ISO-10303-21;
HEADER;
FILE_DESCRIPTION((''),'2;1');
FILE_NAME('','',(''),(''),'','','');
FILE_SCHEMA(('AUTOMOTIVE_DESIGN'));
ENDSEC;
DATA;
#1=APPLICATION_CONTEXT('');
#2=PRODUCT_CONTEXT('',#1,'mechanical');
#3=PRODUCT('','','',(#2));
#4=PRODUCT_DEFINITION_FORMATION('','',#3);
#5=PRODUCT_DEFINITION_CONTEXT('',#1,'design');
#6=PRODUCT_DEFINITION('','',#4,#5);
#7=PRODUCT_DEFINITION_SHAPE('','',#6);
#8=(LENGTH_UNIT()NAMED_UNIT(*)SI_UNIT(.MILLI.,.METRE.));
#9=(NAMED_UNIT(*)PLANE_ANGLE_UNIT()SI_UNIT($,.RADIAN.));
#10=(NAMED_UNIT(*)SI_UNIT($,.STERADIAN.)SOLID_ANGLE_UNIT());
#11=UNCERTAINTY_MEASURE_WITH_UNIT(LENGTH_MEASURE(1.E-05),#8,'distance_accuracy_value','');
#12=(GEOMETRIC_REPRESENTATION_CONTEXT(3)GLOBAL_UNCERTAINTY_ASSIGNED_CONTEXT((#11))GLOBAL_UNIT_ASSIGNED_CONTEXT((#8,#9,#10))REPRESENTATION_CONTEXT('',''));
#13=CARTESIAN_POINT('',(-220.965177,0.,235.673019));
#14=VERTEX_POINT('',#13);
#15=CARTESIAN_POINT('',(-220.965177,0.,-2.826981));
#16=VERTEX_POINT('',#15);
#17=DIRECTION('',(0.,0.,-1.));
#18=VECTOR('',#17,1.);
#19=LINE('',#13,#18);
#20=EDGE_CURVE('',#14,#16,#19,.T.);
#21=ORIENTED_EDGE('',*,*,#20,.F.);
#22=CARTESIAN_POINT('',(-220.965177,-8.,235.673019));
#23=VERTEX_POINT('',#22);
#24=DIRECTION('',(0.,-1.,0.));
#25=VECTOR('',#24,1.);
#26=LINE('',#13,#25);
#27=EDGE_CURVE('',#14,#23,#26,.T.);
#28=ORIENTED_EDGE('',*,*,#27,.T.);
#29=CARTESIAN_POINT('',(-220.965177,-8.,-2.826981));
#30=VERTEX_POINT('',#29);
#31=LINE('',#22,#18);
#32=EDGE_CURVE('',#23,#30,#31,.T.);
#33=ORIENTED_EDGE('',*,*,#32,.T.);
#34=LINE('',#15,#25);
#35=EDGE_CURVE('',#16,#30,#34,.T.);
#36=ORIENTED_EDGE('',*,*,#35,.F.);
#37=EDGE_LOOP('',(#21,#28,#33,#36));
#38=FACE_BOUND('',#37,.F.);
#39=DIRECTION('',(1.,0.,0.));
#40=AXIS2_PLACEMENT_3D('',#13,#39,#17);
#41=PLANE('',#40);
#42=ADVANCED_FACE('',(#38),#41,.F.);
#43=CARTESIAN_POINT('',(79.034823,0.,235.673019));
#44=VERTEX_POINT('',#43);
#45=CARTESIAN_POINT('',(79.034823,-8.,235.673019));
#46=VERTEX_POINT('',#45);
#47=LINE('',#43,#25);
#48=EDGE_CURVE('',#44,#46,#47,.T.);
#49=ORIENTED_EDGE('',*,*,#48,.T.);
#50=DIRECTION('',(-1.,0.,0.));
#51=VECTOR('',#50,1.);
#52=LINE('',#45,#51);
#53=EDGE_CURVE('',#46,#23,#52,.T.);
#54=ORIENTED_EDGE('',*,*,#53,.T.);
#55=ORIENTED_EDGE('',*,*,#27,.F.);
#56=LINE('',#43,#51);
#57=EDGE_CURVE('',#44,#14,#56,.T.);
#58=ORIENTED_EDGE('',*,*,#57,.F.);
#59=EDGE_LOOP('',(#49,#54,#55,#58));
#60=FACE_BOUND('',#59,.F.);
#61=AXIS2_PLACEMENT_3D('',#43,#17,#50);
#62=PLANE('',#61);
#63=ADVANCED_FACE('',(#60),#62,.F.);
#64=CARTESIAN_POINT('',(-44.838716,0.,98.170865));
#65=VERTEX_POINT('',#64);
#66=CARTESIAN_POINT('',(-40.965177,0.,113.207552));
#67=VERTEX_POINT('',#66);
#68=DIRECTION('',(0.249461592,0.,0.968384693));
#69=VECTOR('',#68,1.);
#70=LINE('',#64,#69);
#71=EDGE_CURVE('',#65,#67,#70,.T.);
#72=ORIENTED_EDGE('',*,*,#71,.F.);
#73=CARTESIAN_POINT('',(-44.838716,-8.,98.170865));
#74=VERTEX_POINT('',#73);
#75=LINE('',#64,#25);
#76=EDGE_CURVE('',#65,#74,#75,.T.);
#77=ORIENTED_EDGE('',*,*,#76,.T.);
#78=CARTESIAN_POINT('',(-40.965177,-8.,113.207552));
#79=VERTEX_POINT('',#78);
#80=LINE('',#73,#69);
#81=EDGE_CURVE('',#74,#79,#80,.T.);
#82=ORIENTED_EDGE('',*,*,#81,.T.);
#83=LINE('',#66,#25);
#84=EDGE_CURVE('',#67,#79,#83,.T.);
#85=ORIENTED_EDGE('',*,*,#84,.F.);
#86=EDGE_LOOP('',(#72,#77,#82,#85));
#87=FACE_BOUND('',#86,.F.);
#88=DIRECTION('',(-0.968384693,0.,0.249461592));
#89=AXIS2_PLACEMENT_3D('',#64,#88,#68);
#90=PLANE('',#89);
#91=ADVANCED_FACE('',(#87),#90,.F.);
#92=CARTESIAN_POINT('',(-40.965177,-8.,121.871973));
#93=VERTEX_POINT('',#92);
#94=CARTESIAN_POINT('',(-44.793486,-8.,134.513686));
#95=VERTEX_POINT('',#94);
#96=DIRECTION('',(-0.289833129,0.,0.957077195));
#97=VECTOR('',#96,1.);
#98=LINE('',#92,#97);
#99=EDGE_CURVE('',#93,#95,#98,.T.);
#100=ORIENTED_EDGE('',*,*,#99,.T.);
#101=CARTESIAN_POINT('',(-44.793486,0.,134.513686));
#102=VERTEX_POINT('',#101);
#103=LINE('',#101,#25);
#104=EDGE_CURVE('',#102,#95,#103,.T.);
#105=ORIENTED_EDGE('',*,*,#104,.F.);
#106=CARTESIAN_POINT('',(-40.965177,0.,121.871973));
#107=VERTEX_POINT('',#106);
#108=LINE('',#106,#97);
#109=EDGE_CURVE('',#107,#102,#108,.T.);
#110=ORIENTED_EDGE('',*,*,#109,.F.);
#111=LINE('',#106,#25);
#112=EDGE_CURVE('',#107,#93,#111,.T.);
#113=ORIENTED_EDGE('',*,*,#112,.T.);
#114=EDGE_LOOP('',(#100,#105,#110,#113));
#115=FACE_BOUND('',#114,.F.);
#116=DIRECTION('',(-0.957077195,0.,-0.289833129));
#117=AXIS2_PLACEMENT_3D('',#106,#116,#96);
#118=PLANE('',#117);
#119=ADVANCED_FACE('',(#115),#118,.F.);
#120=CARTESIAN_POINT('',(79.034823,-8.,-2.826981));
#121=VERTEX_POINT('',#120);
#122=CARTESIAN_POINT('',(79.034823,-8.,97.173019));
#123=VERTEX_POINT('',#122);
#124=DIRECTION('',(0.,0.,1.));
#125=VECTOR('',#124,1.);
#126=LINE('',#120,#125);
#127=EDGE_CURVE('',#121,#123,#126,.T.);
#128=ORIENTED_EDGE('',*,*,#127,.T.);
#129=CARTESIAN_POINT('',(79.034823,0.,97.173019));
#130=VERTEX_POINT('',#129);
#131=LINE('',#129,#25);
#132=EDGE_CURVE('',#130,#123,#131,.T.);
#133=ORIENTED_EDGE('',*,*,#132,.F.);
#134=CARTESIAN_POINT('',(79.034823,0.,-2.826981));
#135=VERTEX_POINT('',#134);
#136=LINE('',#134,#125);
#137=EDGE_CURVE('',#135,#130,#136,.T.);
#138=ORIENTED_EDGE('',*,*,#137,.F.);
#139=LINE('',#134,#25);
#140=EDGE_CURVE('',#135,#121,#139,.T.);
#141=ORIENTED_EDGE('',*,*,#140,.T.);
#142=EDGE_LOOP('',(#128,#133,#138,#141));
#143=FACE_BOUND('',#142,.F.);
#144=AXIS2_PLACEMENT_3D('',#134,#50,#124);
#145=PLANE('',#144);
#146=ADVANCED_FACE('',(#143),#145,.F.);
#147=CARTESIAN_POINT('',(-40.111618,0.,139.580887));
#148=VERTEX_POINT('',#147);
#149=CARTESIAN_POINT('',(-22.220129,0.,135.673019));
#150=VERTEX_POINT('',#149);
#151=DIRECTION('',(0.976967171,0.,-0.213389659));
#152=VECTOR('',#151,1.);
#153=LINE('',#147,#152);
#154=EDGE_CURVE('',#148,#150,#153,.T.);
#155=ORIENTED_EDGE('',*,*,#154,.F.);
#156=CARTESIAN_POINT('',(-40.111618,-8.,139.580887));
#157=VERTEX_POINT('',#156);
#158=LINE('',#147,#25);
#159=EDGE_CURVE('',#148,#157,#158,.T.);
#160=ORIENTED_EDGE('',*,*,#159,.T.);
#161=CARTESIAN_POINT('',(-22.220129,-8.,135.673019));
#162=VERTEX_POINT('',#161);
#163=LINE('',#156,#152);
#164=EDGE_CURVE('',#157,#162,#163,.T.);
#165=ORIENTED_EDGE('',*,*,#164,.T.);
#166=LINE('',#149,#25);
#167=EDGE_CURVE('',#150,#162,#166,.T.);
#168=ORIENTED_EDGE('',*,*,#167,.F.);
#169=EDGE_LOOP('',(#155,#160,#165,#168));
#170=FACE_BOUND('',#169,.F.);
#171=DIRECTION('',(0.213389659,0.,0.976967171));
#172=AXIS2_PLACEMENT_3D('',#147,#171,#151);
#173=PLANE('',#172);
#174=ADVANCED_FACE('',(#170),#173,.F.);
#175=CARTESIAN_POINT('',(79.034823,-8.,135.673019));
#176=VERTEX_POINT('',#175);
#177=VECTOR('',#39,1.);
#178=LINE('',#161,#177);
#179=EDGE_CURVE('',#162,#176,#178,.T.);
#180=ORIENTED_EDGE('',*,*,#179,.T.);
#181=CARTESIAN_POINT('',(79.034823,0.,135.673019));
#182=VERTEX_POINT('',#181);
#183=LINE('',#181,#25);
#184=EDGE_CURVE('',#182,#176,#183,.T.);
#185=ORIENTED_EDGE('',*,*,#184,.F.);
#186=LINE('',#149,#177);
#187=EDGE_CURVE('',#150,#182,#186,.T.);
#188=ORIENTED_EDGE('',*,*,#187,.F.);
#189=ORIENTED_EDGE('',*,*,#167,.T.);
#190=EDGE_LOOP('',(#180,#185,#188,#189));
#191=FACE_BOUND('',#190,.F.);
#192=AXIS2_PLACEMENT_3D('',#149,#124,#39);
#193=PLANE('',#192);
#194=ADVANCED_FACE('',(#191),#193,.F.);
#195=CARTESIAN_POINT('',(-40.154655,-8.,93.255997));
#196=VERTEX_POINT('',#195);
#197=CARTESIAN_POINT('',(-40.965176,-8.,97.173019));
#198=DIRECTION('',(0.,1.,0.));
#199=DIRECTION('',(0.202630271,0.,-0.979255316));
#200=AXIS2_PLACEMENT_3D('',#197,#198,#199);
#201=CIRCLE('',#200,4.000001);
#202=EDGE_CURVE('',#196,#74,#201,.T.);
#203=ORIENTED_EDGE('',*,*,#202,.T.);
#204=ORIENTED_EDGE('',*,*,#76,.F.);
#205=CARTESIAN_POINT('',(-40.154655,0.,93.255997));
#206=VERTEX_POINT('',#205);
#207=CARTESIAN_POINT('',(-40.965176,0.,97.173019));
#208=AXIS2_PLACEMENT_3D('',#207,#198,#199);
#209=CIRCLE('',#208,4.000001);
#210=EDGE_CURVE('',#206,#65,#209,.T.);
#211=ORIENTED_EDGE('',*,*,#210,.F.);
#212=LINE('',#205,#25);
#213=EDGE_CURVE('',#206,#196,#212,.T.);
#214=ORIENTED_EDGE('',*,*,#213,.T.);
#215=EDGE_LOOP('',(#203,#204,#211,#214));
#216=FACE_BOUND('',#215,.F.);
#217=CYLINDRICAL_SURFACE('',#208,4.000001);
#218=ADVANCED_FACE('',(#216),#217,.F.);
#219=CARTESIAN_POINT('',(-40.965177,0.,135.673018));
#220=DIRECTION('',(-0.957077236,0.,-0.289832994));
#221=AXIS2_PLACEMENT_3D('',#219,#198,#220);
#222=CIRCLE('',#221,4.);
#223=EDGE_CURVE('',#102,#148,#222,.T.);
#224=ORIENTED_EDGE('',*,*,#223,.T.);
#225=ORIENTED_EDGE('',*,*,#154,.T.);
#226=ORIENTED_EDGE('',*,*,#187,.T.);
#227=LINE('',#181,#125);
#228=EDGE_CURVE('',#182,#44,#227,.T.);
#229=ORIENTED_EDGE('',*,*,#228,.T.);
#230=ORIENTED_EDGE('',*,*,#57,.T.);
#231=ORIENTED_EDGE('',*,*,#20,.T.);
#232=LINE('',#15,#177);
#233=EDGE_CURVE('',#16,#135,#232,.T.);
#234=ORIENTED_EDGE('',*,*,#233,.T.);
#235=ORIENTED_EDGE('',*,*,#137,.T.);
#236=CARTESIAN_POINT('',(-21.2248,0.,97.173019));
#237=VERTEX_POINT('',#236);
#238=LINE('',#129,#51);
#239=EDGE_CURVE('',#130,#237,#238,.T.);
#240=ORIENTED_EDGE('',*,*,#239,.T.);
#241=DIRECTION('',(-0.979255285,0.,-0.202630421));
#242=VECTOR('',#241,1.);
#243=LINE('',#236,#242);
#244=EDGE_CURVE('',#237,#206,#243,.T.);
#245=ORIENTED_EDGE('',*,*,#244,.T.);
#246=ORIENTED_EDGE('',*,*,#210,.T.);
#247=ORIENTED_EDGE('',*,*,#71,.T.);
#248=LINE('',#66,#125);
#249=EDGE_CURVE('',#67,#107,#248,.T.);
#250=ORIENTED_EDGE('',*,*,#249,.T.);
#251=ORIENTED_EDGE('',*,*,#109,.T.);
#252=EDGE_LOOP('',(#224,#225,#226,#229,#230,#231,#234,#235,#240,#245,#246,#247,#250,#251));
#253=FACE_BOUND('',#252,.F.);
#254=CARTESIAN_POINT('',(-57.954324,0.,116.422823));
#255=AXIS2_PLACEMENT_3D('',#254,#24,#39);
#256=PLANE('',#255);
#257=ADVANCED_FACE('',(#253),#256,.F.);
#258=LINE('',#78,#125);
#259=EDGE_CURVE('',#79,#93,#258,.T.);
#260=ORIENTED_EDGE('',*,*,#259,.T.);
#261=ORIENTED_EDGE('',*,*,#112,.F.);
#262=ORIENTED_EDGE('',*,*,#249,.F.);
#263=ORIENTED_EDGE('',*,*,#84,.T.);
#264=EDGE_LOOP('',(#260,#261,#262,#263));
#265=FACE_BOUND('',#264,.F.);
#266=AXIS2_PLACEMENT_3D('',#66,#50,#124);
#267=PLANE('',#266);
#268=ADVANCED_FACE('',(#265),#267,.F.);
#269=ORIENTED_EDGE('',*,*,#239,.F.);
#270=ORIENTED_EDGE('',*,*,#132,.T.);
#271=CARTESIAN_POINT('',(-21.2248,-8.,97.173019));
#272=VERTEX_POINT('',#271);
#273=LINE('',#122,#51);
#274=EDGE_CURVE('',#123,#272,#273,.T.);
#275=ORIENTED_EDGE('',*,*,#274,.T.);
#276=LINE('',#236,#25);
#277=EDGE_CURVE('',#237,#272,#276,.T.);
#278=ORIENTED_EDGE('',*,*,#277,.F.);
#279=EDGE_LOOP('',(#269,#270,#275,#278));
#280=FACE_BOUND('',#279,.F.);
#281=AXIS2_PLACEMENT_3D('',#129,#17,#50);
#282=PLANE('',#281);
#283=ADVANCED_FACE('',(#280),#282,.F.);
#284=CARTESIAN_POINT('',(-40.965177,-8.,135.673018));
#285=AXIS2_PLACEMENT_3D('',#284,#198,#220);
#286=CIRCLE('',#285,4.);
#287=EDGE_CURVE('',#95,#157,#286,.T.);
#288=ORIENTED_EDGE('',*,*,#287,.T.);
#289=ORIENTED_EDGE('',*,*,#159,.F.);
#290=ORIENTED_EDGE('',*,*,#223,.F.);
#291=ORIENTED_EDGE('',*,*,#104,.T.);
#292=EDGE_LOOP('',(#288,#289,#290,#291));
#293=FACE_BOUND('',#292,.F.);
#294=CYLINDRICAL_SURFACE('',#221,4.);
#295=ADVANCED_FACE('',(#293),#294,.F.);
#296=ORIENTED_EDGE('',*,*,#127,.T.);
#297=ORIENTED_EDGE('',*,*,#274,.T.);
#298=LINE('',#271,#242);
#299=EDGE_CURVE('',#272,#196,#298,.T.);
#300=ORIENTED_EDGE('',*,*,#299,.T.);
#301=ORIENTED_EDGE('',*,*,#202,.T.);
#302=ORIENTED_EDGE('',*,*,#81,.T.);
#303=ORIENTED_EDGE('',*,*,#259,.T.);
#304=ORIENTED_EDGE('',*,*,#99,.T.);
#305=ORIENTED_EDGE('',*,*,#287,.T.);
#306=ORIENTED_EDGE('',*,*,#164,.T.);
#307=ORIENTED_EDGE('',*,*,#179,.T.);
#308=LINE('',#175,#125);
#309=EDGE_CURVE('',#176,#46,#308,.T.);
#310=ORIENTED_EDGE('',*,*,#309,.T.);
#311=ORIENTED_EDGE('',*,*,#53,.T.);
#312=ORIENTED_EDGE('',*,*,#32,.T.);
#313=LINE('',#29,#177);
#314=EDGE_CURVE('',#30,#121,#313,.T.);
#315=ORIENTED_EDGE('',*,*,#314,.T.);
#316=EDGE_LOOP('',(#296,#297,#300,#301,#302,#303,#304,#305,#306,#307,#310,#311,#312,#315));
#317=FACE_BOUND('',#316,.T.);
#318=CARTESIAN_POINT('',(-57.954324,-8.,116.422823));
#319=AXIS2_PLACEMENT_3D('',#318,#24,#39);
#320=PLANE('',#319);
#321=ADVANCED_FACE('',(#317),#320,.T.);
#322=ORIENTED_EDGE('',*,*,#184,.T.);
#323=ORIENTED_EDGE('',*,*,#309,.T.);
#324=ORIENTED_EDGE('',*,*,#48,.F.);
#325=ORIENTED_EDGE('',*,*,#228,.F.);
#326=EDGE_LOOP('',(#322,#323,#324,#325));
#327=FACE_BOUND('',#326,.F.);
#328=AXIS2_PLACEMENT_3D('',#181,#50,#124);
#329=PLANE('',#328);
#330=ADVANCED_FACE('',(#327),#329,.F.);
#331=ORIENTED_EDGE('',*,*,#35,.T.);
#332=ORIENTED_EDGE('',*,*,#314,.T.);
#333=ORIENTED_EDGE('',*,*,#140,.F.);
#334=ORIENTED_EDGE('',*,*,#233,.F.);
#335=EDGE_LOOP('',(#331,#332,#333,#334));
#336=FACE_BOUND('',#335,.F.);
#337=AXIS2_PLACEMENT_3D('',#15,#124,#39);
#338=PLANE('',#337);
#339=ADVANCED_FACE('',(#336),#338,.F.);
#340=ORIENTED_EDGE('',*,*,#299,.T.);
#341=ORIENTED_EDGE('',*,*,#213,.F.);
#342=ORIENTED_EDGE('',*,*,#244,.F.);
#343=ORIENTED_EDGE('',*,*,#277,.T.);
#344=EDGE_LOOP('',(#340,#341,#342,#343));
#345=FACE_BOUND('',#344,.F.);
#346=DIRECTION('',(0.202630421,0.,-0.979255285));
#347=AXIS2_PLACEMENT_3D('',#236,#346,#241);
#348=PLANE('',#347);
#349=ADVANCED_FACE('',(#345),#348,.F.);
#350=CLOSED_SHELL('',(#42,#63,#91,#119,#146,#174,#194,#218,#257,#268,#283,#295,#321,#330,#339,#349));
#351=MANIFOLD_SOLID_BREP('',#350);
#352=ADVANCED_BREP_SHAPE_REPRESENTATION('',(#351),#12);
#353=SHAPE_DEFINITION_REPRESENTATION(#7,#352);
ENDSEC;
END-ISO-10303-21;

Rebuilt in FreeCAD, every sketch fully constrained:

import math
import FreeCAD as App
import Part
import Sketcher

V = App.Vector
Q = App.Units.Quantity

doc = App.newDocument("Part")
params = doc.addObject("Spreadsheet::Sheet", "Params")
for row, (alias, value) in enumerate([
    ("sketch1_radius", "4.000001 mm"),
    ("sketch1_width", "300 mm"),
    ("sketch1_height", "100 mm"),
    ("sketch1_height2", "238.5 mm"),
    ("pad1_length", "8 mm"),
], start=1):
    params.set(f"A{row}", alias)
    params.set(f"B{row}", "=" + value)
    params.setAlias(f"B{row}", alias)

body = doc.addObject("PartDesign::Body", "Body")

# Sketch on XZ plane
sketch1 = body.newObject("Sketcher::SketchObject", "Sketch")
sketch1.AttachmentSupport = (doc.getObject("XZ_Plane"), [""])
sketch1.MapMode = "FlatFace"
sketch1.addGeometry([
    Part.LineSegment(V(-40.1, 139.6, 0), V(-22.2, 135.7, 0)),  # 0
    Part.LineSegment(V(-22.2, 135.7, 0), V(79, 135.7, 0)),  # 1
    Part.LineSegment(V(79, 135.7, 0), V(79, 235.7, 0)),  # 2
    Part.LineSegment(V(79, 235.7, 0), V(-221, 235.7, 0)),  # 3
    Part.LineSegment(V(-221, 235.7, 0), V(-221, -2.8, 0)),  # 4
    Part.LineSegment(V(-221, -2.8, 0), V(79, -2.8, 0)),  # 5
    Part.LineSegment(V(79, -2.8, 0), V(79, 97.2, 0)),  # 6
    Part.LineSegment(V(79, 97.2, 0), V(-21.2, 97.2, 0)),  # 7
    Part.LineSegment(V(-21.2, 97.2, 0), V(-40.2, 93.3, 0)),  # 8
    Part.ArcOfCircle(Part.Circle(V(-41, 97.2, 0), V(0, 0, 1), 4), math.radians(166), math.radians(282)),  # 9
    Part.LineSegment(V(-44.8, 98.2, 0), V(-41, 113.2, 0)),  # 10
    Part.LineSegment(V(-41, 113.2, 0), V(-41, 121.9, 0)),  # 11
    Part.LineSegment(V(-41, 121.9, 0), V(-44.8, 134.5, 0)),  # 12
    Part.ArcOfCircle(Part.Circle(V(-41, 135.7, 0), V(0, 0, 1), 4), math.radians(78), math.radians(197)),  # 13
], False)
sketch1.addConstraint([
    Sketcher.Constraint("Coincident", 0, 2, 1, 1),
    Sketcher.Constraint("Coincident", 1, 2, 2, 1),
    Sketcher.Constraint("Coincident", 2, 2, 3, 1),
    Sketcher.Constraint("Coincident", 3, 2, 4, 1),
    Sketcher.Constraint("Coincident", 4, 2, 5, 1),
    Sketcher.Constraint("Coincident", 5, 2, 6, 1),
    Sketcher.Constraint("Coincident", 6, 2, 7, 1),
    Sketcher.Constraint("Coincident", 7, 2, 8, 1),
    Sketcher.Constraint("Tangent", 8, 2, 9, 2),
    Sketcher.Constraint("Tangent", 9, 1, 10, 1),
    Sketcher.Constraint("Coincident", 10, 2, 11, 1),
    Sketcher.Constraint("Coincident", 11, 2, 12, 1),
    Sketcher.Constraint("Tangent", 12, 2, 13, 2),
    Sketcher.Constraint("Tangent", 13, 1, 0, 1),
    Sketcher.Constraint("Horizontal", 1),
    Sketcher.Constraint("Vertical", 2),
    Sketcher.Constraint("Horizontal", 3),
    Sketcher.Constraint("Vertical", 4),
    Sketcher.Constraint("Horizontal", 5),
    Sketcher.Constraint("Vertical", 6),
    Sketcher.Constraint("Horizontal", 7),
    Sketcher.Constraint("Vertical", 11),
    Sketcher.Constraint("Equal", 9, 13),
    Sketcher.Constraint("Horizontal", 13, 3, 0, 2),
    Sketcher.Constraint("Horizontal", 9, 3, 6, 2),
    Sketcher.Constraint("Vertical", 9, 3, 13, 3),
    Sketcher.Constraint("Vertical", 2, 2, 5, 2),
    Sketcher.Constraint("Vertical", 13, 3, 10, 2),
    Sketcher.Constraint("Equal", 2, 6),
    Sketcher.Constraint("Radius", 9, Q("4.000001 mm")),
    Sketcher.Constraint("DistanceX", 3, 2, 3, 1, Q("300 mm")),
    Sketcher.Constraint("DistanceY", 2, 1, 2, 2, Q("100 mm")),
    Sketcher.Constraint("DistanceY", 4, 2, 4, 1, Q("238.5 mm")),
    Sketcher.Constraint("DistanceX", 13, 3, 1, 2, Q("120 mm")),
    Sketcher.Constraint("DistanceY", 11, 1, 11, 2, Q("8.664421 mm")),
    Sketcher.Constraint("DistanceX", 7, 2, -1, 1, Q("21.2248 mm")),
    Sketcher.Constraint("DistanceY", 12, 2, 13, 1, Q("5.067201 mm")),
    Sketcher.Constraint("Distance", 8, Q("19.330868 mm")),
    Sketcher.Constraint("DistanceX", 1, 1, 1, 2, Q("101.254952 mm")),
    Sketcher.Constraint("DistanceY", -1, 1, 9, 3, Q("97.173019 mm")),
])
sketch1.setExpression("Constraints[29]", "Params.sketch1_radius")
sketch1.setExpression("Constraints[30]", "Params.sketch1_width")
sketch1.setExpression("Constraints[31]", "Params.sketch1_height")
sketch1.setExpression("Constraints[32]", "Params.sketch1_height2")
pad1 = body.newObject("PartDesign::Pad", "Pad")
pad1.Profile = sketch1
pad1.setExpression("Length", "Params.pad1_length")

doc.recompute()
